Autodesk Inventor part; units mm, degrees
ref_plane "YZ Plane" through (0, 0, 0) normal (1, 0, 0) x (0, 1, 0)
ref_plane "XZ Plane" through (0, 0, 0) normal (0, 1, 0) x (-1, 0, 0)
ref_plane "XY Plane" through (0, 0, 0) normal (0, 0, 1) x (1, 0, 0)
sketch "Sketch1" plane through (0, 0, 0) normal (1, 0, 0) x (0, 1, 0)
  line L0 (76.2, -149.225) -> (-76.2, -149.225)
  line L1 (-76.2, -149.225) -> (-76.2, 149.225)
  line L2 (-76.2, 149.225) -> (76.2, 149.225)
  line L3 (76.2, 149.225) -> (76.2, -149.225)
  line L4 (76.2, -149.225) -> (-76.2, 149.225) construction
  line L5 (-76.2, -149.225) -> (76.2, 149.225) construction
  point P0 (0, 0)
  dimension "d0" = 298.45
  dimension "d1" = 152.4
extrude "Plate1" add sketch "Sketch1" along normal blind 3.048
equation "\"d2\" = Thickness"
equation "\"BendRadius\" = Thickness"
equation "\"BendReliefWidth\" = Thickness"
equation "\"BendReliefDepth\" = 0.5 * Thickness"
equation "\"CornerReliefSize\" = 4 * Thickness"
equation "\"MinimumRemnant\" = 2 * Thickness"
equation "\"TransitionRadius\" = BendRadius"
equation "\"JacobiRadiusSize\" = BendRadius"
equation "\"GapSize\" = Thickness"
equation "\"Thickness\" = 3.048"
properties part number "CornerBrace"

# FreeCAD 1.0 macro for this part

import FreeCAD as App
import Part
import Sketcher
Q = App.Units.Quantity


def add_polygon(sketch, points):
    """Adds a closed chain of lines whose ends are joined by coincident constraints."""
    first, n = sketch.GeometryCount, len(points)
    for a, b in zip(points, points[1:] + points[:1]):
        sketch.addGeometry(Part.LineSegment(App.Vector(*a, 0), App.Vector(*b, 0)), False)
    for i in range(n):
        sketch.addConstraint(Sketcher.Constraint("Coincident", first + i, 2, first + (i + 1) % n, 1))

doc = App.newDocument("Part")
body = doc.addObject("PartDesign::Body", "Body")

# Sketch on YZ plane
sketch1 = body.newObject("Sketcher::SketchObject", "Sketch")
sketch1.AttachmentSupport = (doc.getObject("YZ_Plane"), [""])
sketch1.MapMode = "FlatFace"
add_polygon(sketch1, [(-76.2, -149.225), (76.2, -149.225), (76.2, 149.225), (-76.2, 149.225)])  # lines 0-3
sketch1.addConstraint([
    Sketcher.Constraint("Horizontal", 0),
    Sketcher.Constraint("Vertical", 1),
    Sketcher.Constraint("Horizontal", 2),
    Sketcher.Constraint("Vertical", 3),
    Sketcher.Constraint("Symmetric", 0, 2, 2, 2, -1, 1),
    Sketcher.Constraint("DistanceX", 0, 1, 0, 2, Q("6 in")),
    Sketcher.Constraint("DistanceY", 1, 1, 1, 2, Q("11.75 in")),
])
pad1 = body.newObject("PartDesign::Pad", "Pad")
pad1.Profile = sketch1
pad1.Length = Q("0.12 in")

doc.recompute()
